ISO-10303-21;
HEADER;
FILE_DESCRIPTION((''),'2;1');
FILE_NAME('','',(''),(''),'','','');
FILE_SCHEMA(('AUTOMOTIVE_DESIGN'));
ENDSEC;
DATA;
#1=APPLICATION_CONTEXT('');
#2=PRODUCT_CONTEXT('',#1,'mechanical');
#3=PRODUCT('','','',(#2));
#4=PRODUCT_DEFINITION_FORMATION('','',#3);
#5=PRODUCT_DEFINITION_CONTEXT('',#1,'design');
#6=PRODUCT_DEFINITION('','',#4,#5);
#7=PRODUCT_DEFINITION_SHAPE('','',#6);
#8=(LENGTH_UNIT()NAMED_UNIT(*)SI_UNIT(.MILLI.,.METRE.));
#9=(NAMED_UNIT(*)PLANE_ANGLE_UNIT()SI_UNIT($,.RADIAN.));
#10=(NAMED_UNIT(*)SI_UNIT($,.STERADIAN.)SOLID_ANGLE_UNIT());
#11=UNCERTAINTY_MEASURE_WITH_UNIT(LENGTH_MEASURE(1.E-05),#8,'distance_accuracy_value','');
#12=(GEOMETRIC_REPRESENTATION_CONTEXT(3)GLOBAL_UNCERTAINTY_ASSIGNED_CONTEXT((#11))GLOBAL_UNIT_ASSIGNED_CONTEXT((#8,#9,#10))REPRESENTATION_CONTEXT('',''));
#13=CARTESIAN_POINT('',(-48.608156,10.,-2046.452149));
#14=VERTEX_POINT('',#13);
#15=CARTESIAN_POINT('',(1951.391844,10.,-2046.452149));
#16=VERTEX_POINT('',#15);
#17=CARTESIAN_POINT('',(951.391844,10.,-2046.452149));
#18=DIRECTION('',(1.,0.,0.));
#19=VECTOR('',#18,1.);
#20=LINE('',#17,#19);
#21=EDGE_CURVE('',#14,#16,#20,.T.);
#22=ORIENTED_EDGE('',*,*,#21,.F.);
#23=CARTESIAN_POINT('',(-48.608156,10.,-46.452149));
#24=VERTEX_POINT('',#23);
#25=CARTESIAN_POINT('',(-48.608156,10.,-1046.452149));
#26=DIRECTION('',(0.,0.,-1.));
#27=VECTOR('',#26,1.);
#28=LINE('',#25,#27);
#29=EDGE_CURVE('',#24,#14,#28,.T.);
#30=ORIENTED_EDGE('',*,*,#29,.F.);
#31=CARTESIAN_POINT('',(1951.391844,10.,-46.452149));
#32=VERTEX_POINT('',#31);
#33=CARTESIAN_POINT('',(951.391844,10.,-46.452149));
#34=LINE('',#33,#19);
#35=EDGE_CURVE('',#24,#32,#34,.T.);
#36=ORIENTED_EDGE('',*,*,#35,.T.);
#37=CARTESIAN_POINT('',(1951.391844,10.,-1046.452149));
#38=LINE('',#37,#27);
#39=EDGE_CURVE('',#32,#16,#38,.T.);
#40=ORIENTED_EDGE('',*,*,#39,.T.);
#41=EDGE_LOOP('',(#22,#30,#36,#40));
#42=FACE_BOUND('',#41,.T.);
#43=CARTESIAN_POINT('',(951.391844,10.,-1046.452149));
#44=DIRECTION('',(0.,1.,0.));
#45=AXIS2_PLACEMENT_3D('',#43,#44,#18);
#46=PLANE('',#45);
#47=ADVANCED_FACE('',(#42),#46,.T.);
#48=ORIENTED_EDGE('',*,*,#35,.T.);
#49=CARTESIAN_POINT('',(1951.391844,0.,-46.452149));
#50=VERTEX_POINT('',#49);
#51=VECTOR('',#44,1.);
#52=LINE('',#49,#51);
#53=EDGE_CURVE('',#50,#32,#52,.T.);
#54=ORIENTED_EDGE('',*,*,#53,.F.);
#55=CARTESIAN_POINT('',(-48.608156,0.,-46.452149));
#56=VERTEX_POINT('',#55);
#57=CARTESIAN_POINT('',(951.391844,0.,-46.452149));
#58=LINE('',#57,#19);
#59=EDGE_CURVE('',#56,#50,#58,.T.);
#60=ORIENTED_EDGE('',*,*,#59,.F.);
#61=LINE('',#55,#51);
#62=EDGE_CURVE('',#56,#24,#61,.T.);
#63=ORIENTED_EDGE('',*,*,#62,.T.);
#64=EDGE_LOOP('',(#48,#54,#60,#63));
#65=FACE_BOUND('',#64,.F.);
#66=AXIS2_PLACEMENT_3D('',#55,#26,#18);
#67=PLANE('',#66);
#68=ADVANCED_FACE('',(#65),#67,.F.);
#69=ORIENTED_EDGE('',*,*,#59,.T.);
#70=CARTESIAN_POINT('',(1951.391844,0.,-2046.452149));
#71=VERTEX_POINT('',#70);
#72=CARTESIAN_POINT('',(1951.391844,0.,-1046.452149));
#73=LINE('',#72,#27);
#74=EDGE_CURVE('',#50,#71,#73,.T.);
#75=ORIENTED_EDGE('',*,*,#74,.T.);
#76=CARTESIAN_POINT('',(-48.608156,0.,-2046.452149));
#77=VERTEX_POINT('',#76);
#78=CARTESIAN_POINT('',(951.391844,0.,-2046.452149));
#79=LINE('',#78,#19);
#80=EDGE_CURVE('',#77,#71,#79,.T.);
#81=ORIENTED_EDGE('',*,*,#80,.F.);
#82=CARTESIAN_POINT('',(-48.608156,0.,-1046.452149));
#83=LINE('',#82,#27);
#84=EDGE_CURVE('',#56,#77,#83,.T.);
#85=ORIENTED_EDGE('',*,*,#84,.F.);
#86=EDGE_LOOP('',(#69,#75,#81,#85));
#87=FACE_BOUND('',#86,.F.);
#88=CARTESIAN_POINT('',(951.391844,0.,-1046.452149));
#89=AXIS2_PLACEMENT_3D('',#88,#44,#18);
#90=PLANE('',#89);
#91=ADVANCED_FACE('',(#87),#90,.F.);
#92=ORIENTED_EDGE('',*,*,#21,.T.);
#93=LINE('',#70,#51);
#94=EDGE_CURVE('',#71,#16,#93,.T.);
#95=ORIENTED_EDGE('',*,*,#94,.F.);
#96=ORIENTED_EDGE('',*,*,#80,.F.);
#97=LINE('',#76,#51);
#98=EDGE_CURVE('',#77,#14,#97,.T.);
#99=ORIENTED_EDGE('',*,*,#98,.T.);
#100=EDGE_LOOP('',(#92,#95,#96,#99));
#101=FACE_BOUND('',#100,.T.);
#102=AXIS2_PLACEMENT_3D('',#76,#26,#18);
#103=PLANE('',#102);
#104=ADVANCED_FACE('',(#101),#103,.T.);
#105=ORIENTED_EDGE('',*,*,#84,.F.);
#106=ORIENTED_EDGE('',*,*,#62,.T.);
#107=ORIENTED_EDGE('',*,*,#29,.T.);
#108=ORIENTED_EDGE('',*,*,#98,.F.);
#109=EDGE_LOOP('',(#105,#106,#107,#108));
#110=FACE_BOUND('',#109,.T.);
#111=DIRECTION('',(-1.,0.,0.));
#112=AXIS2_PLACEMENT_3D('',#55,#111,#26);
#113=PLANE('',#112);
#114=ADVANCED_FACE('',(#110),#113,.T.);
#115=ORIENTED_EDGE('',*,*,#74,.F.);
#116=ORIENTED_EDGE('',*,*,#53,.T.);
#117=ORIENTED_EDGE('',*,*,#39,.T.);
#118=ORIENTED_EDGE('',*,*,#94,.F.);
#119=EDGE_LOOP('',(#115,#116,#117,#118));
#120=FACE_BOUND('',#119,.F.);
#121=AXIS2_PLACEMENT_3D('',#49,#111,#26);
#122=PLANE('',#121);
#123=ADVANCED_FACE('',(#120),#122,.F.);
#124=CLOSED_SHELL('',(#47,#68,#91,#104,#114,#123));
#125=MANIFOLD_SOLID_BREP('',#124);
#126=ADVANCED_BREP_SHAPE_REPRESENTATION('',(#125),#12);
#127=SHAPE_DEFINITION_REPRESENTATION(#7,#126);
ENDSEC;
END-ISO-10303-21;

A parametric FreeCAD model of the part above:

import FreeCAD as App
import Part
import Sketcher

doc = App.newDocument("Part")
body = doc.addObject("PartDesign::Body", "Body")

# Sketch on XZ plane
sketch1 = body.newObject("Sketcher::SketchObject", "Sketch")
sketch1.AttachmentSupport = (doc.getObject("XZ_Plane"), [""])
sketch1.MapMode = "FlatFace"
sketch1.addGeometry([
    Part.LineSegment(App.Vector(-48.608156, -2046.452149, 0), App.Vector(-48.608156, -46.452149, 0)),
    Part.LineSegment(App.Vector(-48.608156, -46.452149, 0), App.Vector(1951.391844, -46.452149, 0)),
    Part.LineSegment(App.Vector(1951.391844, -46.452149, 0), App.Vector(1951.391844, -2046.452149, 0)),
    Part.LineSegment(App.Vector(1951.391844, -2046.452149, 0), App.Vector(-48.608156, -2046.452149, 0)),
], False)
sketch1.addConstraint([
    Sketcher.Constraint("Coincident", 0, 2, 1, 1),
    Sketcher.Constraint("Coincident", 1, 2, 2, 1),
    Sketcher.Constraint("Coincident", 2, 2, 3, 1),
    Sketcher.Constraint("Coincident", 3, 2, 0, 1),
    Sketcher.Constraint("Vertical", 0),
    Sketcher.Constraint("Horizontal", 1),
    Sketcher.Constraint("Vertical", 2),
    Sketcher.Constraint("Horizontal", 3),
    Sketcher.Constraint("Equal", 3, 0),
    Sketcher.Constraint("DistanceX", 1, 1, 1, 2, 2000.0),
    Sketcher.Constraint("DistanceY", 0, 2, -1, 1, 46.452149),
    Sketcher.Constraint("DistanceX", 0, 2, -1, 1, 48.608156),
])
pad1 = body.newObject("PartDesign::Pad", "Pad")
pad1.Profile = sketch1
pad1.Length = 10
pad1.Reversed = True

doc.recompute()
